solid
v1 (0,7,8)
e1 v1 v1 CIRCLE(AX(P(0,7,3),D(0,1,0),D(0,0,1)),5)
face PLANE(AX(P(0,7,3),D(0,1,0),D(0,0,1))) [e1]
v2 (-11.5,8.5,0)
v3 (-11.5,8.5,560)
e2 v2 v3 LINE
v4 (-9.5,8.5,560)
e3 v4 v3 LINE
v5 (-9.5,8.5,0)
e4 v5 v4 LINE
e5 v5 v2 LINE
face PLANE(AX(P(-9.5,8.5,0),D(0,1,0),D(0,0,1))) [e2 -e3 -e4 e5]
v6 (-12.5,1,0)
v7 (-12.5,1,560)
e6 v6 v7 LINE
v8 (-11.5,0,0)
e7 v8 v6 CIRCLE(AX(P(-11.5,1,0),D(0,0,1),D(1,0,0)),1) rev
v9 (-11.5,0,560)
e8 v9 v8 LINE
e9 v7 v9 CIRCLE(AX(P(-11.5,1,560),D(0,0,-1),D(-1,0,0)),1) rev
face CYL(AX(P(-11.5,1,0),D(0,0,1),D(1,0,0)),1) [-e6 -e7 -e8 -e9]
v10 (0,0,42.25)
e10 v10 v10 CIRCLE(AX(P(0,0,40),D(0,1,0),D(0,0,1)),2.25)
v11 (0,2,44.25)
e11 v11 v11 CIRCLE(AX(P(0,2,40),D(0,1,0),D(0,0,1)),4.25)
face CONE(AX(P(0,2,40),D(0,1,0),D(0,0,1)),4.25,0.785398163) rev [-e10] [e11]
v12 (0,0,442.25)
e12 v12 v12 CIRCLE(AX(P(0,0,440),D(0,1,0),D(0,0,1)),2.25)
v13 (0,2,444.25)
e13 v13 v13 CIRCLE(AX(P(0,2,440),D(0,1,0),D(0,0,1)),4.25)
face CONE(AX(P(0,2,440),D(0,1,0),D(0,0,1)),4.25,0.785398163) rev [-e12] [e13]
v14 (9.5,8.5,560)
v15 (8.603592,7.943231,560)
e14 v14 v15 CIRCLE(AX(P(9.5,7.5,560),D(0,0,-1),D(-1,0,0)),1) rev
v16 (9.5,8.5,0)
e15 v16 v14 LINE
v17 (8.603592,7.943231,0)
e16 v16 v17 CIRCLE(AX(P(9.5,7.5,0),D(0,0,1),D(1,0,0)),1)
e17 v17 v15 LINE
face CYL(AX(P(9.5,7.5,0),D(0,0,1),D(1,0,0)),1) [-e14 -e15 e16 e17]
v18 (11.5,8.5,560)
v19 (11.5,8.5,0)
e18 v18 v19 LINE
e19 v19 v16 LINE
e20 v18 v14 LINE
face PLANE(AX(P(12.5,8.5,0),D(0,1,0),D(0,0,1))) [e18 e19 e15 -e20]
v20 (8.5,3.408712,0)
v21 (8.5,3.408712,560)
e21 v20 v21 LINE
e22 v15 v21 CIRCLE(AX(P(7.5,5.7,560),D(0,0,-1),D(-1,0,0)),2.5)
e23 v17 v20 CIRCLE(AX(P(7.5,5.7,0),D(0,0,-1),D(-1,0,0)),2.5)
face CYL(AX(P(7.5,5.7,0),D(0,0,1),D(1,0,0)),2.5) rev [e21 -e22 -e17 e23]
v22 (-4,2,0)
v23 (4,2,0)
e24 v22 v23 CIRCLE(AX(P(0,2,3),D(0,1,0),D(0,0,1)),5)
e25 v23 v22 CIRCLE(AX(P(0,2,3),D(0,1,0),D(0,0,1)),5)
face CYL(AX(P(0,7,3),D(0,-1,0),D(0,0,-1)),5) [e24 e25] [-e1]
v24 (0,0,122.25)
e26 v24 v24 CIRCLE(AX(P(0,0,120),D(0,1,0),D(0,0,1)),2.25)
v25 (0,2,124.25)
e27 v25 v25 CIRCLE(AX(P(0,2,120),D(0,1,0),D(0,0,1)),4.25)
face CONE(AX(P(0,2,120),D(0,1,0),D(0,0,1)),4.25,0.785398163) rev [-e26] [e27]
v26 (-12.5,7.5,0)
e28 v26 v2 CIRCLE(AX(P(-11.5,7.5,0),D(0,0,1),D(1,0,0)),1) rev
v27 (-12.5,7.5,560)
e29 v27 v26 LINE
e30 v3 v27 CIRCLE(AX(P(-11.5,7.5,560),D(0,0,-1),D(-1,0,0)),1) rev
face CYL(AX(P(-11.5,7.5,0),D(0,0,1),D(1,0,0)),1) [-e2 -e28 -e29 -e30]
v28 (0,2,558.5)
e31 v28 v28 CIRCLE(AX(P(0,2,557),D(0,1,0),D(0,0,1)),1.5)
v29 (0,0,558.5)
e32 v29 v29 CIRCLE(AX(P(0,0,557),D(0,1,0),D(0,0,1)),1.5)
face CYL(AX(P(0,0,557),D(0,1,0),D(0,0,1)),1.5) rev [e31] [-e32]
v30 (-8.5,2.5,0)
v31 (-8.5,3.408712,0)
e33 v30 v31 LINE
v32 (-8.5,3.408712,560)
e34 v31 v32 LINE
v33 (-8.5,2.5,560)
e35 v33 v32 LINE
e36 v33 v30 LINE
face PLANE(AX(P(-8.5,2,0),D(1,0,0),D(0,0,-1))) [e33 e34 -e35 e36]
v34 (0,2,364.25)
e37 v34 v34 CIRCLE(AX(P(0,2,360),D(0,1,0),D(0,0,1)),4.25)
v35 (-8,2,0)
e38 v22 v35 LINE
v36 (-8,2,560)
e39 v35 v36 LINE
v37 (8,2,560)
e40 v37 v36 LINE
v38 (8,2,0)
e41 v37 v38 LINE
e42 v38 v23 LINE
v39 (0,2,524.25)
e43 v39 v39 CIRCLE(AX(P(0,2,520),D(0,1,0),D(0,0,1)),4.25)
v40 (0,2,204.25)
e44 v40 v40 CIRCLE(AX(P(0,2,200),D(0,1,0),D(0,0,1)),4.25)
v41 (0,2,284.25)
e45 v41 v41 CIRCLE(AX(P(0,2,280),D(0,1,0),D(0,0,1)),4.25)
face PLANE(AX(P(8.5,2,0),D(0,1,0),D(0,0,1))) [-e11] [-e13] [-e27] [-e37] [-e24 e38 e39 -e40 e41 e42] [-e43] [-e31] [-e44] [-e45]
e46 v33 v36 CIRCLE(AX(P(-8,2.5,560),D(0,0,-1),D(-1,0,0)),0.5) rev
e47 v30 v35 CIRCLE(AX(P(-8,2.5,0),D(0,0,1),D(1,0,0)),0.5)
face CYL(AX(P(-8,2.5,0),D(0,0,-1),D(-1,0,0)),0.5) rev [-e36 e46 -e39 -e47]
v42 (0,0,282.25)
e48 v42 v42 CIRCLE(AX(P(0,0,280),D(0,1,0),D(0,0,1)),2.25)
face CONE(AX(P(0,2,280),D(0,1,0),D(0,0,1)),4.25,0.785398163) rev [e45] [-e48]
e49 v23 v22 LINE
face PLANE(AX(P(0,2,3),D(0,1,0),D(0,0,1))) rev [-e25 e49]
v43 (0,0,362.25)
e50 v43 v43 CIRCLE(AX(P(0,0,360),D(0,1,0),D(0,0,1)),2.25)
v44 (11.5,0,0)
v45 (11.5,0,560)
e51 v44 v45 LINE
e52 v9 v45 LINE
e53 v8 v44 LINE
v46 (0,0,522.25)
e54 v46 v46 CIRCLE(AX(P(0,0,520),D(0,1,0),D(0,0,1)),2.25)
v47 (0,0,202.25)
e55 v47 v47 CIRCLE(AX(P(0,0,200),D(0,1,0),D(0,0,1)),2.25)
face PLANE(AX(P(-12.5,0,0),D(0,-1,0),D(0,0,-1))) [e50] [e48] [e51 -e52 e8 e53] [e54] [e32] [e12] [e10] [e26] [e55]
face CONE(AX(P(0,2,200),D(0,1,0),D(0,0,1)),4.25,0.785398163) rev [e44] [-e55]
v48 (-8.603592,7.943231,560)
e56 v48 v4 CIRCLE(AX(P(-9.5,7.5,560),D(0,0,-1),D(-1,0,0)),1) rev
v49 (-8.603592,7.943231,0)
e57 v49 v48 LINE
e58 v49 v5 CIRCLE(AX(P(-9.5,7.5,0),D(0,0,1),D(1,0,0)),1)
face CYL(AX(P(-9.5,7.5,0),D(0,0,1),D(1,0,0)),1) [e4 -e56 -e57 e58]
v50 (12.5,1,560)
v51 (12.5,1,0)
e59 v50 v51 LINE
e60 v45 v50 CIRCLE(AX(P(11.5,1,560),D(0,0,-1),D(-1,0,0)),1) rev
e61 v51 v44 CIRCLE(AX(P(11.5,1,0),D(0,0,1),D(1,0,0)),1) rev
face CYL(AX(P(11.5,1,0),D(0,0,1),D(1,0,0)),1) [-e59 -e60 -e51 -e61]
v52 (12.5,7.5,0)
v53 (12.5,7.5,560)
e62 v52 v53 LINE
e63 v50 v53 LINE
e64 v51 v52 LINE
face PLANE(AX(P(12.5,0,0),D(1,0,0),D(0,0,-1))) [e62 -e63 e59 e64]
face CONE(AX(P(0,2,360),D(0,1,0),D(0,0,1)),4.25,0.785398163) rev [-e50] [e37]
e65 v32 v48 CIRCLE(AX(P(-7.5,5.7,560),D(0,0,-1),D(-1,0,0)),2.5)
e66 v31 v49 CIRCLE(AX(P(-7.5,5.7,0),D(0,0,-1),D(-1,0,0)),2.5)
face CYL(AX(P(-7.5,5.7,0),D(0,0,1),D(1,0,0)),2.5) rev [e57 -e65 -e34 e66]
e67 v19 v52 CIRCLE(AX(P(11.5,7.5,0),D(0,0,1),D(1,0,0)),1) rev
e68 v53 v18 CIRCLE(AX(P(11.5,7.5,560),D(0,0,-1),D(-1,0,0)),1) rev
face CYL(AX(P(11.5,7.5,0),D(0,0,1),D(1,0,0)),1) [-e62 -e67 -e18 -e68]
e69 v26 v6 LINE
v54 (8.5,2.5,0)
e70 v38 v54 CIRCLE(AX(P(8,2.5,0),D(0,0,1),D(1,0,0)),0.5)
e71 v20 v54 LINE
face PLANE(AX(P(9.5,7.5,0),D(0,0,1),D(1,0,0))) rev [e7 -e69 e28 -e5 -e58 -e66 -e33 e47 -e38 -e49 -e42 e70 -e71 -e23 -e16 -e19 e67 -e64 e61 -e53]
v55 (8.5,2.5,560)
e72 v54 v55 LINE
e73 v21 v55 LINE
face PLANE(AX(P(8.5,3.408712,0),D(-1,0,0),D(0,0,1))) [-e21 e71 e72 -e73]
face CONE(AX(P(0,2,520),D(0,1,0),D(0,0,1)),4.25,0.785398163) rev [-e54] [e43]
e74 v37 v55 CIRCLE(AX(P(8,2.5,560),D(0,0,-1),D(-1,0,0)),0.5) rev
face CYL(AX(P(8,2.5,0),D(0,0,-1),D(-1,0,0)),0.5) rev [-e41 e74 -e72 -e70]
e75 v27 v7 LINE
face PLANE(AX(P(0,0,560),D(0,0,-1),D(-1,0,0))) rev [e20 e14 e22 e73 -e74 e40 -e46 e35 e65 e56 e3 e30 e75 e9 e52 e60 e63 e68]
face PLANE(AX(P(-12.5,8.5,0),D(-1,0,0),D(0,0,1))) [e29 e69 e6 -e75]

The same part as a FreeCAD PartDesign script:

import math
import FreeCAD as App
import Part
import Sketcher
Q = App.Units.Quantity


def edges_at(feature, points):
    """Names of the edges that pass closest to the given points."""
    edges = feature.Shape.Edges
    near = lambda p: min(range(len(edges)), key=lambda i: edges[i].distToShape(Part.Vertex(*p))[0])
    return sorted({f"Edge{near(p) + 1}" for p in points})

doc = App.newDocument("Part")
body = doc.addObject("PartDesign::Body", "Body")

# Sketch on XY plane
sketch1 = body.newObject("Sketcher::SketchObject", "Sketch")
sketch1.AttachmentSupport = (doc.getObject("XY_Plane"), [""])
sketch1.MapMode = "FlatFace"
sketch1.AttachmentOffset = App.Placement(App.Vector(0, 0, 720), App.Rotation())
sketch1.addGeometry([
    Part.LineSegment(App.Vector(8.5, 3.4, 0), App.Vector(8.5, 2, 0)),  # 0
    Part.LineSegment(App.Vector(8.5, 2, 0), App.Vector(-8.5, 2, 0)),  # 1
    Part.LineSegment(App.Vector(-8.5, 2, 0), App.Vector(-8.5, 3.4, 0)),  # 2
    Part.ArcOfCircle(Part.Circle(App.Vector(-7.5, 5.7, 0), App.Vector(0, 0, 1), 2.5), math.radians(116), math.radians(246)),  # 3
    Part.ArcOfCircle(Part.Circle(App.Vector(-9.5, 7.5, 0), App.Vector(0, 0, 1), 1), math.radians(26), math.radians(90)),  # 4
    Part.LineSegment(App.Vector(-9.5, 8.5, 0), App.Vector(-12.5, 8.5, 0)),  # 5
    Part.LineSegment(App.Vector(-12.5, 8.5, 0), App.Vector(-12.5, 0, 0)),  # 6
    Part.LineSegment(App.Vector(-12.5, 0, 0), App.Vector(12.5, 0, 0)),  # 7
    Part.LineSegment(App.Vector(12.5, 0, 0), App.Vector(12.5, 8.5, 0)),  # 8
    Part.LineSegment(App.Vector(12.5, 8.5, 0), App.Vector(9.5, 8.5, 0)),  # 9
    Part.ArcOfCircle(Part.Circle(App.Vector(9.5, 7.5, 0), App.Vector(0, 0, 1), 1), math.radians(90), math.radians(154)),  # 10
    Part.ArcOfCircle(Part.Circle(App.Vector(7.5, 5.7, 0), App.Vector(0, 0, 1), 2.5), math.radians(-66), math.radians(64)),  # 11
], False)
sketch1.addConstraint([
    Sketcher.Constraint("Coincident", 0, 2, 1, 1),
    Sketcher.Constraint("Coincident", 1, 2, 2, 1),
    Sketcher.Constraint("Coincident", 2, 2, 3, 2),
    Sketcher.Constraint("Coincident", 3, 1, 4, 1),
    Sketcher.Constraint("Tangent", 4, 2, 5, 1),
    Sketcher.Constraint("Coincident", 5, 2, 6, 1),
    Sketcher.Constraint("Coincident", 6, 2, 7, 1),
    Sketcher.Constraint("Coincident", 7, 2, 8, 1),
    Sketcher.Constraint("Coincident", 8, 2, 9, 1),
    Sketcher.Constraint("Tangent", 9, 2, 10, 1),
    Sketcher.Constraint("Coincident", 10, 2, 11, 2),
    Sketcher.Constraint("Coincident", 11, 1, 0, 1),
    Sketcher.Constraint("Vertical", 0),
    Sketcher.Constraint("Horizontal", 1),
    Sketcher.Constraint("Vertical", 2),
    Sketcher.Constraint("Horizontal", 5),
    Sketcher.Constraint("Vertical", 6),
    Sketcher.Constraint("Horizontal", 7),
    Sketcher.Constraint("Vertical", 8),
    Sketcher.Constraint("Horizontal", 9),
    Sketcher.Constraint("Equal", 4, 10),
    Sketcher.Constraint("Equal", 3, 11),
    Sketcher.Constraint("Symmetric", 6, 2, 7, 2, -1, 1),
    Sketcher.Constraint("Symmetric", 4, 3, 10, 3, -2),
    Sketcher.Constraint("Symmetric", 3, 3, 11, 3, -2),
    Sketcher.Constraint("Horizontal", 2, 2, 11, 1),
    Sketcher.Constraint("Radius", 4, Q("1 mm")),
    Sketcher.Constraint("Radius", 3, Q("2.5 mm")),
    Sketcher.Constraint("DistanceX", 1, 2, 1, 1, Q("17 mm")),
    Sketcher.Constraint("DistanceX", 5, 2, 5, 1, Q("3 mm")),
    Sketcher.Constraint("DistanceX", 7, 1, 7, 2, Q("25 mm")),
    Sketcher.Constraint("DistanceY", 6, 2, 6, 1, Q("8.5 mm")),
    Sketcher.Constraint("DistanceY", -1, 1, 0, 2, Q("2 mm")),
    Sketcher.Constraint("DistanceX", 4, 3, 3, 3, Q("2 mm")),
    Sketcher.Constraint("DistanceY", -1, 1, 3, 3, Q("5.7 mm")),
])
pad1 = body.newObject("PartDesign::Pad", "Pad")
pad1.Profile = sketch1
pad1.Length = 720
pad1.Reversed = True

# Sketch on XZ plane
sketch2 = body.newObject("Sketcher::SketchObject", "Sketch001")
sketch2.AttachmentSupport = (doc.getObject("XZ_Plane"), [""])
sketch2.MapMode = "FlatFace"
sketch2.AttachmentOffset = App.Placement(App.Vector(0, 0, -2), App.Rotation())
sketch2.addGeometry(Part.Circle(App.Vector(0, 3, 0), App.Vector(0, 0, 1), 5), False)
sketch2.addConstraint([
    Sketcher.Constraint("PointOnObject", 0, 3, -2),
    Sketcher.Constraint("Diameter", 0, Q("10 mm")),
    Sketcher.Constraint("DistanceY", -1, 1, 0, 3, Q("3 mm")),
])
pad2 = body.newObject("PartDesign::Pad", "Pad001")
pad2.Profile = sketch2
pad2.Length = 5
pad2.Reversed = True

# Sketch on YZ plane
sketch3 = body.newObject("Sketcher::SketchObject", "Sketch002")
sketch3.AttachmentSupport = (doc.getObject("YZ_Plane"), [""])
sketch3.MapMode = "FlatFace"
sketch3.addGeometry([
    Part.LineSegment(App.Vector(0, 40, 0), App.Vector(2, 40, 0)),
    Part.LineSegment(App.Vector(2, 40, 0), App.Vector(2, 44.2, 0)),
    Part.LineSegment(App.Vector(2, 44.2, 0), App.Vector(0, 42.2, 0)),
    Part.LineSegment(App.Vector(0, 42.2, 0), App.Vector(0, 40, 0)),
], False)
sketch3.addGeometry(Part.LineSegment(App.Vector(0, 40, 0), App.Vector(2, 40, 0)), True)  # axis
sketch3.addConstraint([
    Sketcher.Constraint("Coincident", 0, 2, 1, 1),
    Sketcher.Constraint("Coincident", 1, 2, 2, 1),
    Sketcher.Constraint("Coincident", 2, 2, 3, 1),
    Sketcher.Constraint("Coincident", 3, 2, 0, 1),
    Sketcher.Constraint("Horizontal", 0),
    Sketcher.Constraint("Vertical", 1),
    Sketcher.Constraint("Vertical", 3),
    Sketcher.Constraint("Horizontal", 4),
    Sketcher.Constraint("Coincident", 4, 1, 3, 2),
    Sketcher.Constraint("PointOnObject", 2, 2, -2),
    Sketcher.Constraint("Vertical", 1, 2, 4, 2),
    Sketcher.Constraint("DistanceX", 0, 1, 0, 2, Q("2 mm")),
    Sketcher.Constraint("Angle", 2, Q("-135 deg")),
    Sketcher.Constraint("DistanceY", -1, 1, 0, 2, Q("40 mm")),
    Sketcher.Constraint("DistanceY", 1, 1, 1, 2, Q("4.25 mm")),
])
groove = body.newObject("PartDesign::Groove", "Groove")
groove.Profile = sketch3
groove.ReferenceAxis = (sketch3, ["Axis0"])
groove.Angle = 360
doc.recompute()

linearpattern = body.newObject("PartDesign::LinearPattern", "LinearPattern")
linearpattern.Originals = [groove]
linearpattern.Direction = (doc.getObject("Z_Axis"), [""])
linearpattern.Mode = "offset"
linearpattern.Offset = 640
linearpattern.Occurrences = 2
body.Tip = linearpattern
doc.recompute()

linearpattern2 = body.newObject("PartDesign::LinearPattern", "LinearPattern001")
linearpattern2.Originals = [groove]
linearpattern2.Direction = (doc.getObject("Z_Axis"), [""])
linearpattern2.Mode = "offset"
linearpattern2.Offset = 560
linearpattern2.Occurrences = 2
body.Tip = linearpattern2
doc.recompute()

linearpattern3 = body.newObject("PartDesign::LinearPattern", "LinearPattern002")
linearpattern3.Originals = [groove]
linearpattern3.Direction = (doc.getObject("Z_Axis"), [""])
linearpattern3.Mode = "offset"
linearpattern3.Offset = 480
linearpattern3.Occurrences = 2
body.Tip = linearpattern3
doc.recompute()

linearpattern4 = body.newObject("PartDesign::LinearPattern", "LinearPattern003")
linearpattern4.Originals = [groove]
linearpattern4.Direction = (doc.getObject("Z_Axis"), [""])
linearpattern4.Mode = "offset"
linearpattern4.Offset = 400
linearpattern4.Occurrences = 2
body.Tip = linearpattern4
doc.recompute()

linearpattern5 = body.newObject("PartDesign::LinearPattern", "LinearPattern004")
linearpattern5.Originals = [groove]
linearpattern5.Direction = (doc.getObject("Z_Axis"), [""])
linearpattern5.Mode = "offset"
linearpattern5.Offset = 320
linearpattern5.Occurrences = 2
body.Tip = linearpattern5
doc.recompute()

linearpattern6 = body.newObject("PartDesign::LinearPattern", "LinearPattern005")
linearpattern6.Originals = [groove]
linearpattern6.Direction = (doc.getObject("Z_Axis"), [""])
linearpattern6.Mode = "offset"
linearpattern6.Offset = 240
linearpattern6.Occurrences = 2
body.Tip = linearpattern6
doc.recompute()

linearpattern7 = body.newObject("PartDesign::LinearPattern", "LinearPattern006")
linearpattern7.Originals = [groove]
linearpattern7.Direction = (doc.getObject("Z_Axis"), [""])
linearpattern7.Mode = "offset"
linearpattern7.Offset = 160
linearpattern7.Occurrences = 2
body.Tip = linearpattern7
doc.recompute()

linearpattern8 = body.newObject("PartDesign::LinearPattern", "LinearPattern007")
linearpattern8.Originals = [groove]
linearpattern8.Direction = (doc.getObject("Z_Axis"), [""])
linearpattern8.Mode = "offset"
linearpattern8.Offset = 80
linearpattern8.Occurrences = 2
body.Tip = linearpattern8
doc.recompute()

fillet = body.newObject("PartDesign::Fillet", "Fillet")
fillet.Base = (linearpattern8, edges_at(linearpattern8, [(-8.5, 2, 360), (8.5, 2, 360)]))
fillet.Radius = 0.5
doc.recompute()

fillet2 = body.newObject("PartDesign::Fillet", "Fillet001")
fillet2.Base = (fillet, edges_at(fillet, [
    (12.5, 8.5, 360),
    (12.5, 0, 360),
    (-12.5, 0, 360),
    (-12.5, 8.5, 360),
]))
fillet2.Radius = 1

# Sketch on XY plane
sketch4 = body.newObject("Sketcher::SketchObject", "Sketch003")
sketch4.AttachmentSupport = (doc.getObject("XY_Plane"), [""])
sketch4.MapMode = "FlatFace"
sketch4.AttachmentOffset = App.Placement(App.Vector(0, 0, 720), App.Rotation())
sketch4.addGeometry([
    Part.LineSegment(App.Vector(-14, 8, 0), App.Vector(-14, 0, 0)),
    Part.LineSegment(App.Vector(-14, 0, 0), App.Vector(14, 0, 0)),
    Part.LineSegment(App.Vector(14, 0, 0), App.Vector(14, 8, 0)),
    Part.LineSegment(App.Vector(14, 8, 0), App.Vector(-14, 8, 0)),
], False)
sketch4.addConstraint([
    Sketcher.Constraint("Coincident", 0, 2, 1, 1),
    Sketcher.Constraint("Coincident", 1, 2, 2, 1),
    Sketcher.Constraint("Coincident", 2, 2, 3, 1),
    Sketcher.Constraint("Coincident", 3, 2, 0, 1),
    Sketcher.Constraint("Vertical", 0),
    Sketcher.Constraint("Horizontal", 1),
    Sketcher.Constraint("Vertical", 2),
    Sketcher.Constraint("Horizontal", 3),
    Sketcher.Constraint("PointOnObject", 0, 2, -1),
    Sketcher.Constraint("DistanceY", 0, 2, 0, 1, Q("8.5 mm")),
    Sketcher.Constraint("DistanceX", 0, 2, -1, 1, Q("14.285299 mm")),
    Sketcher.Constraint("DistanceX", 1, 1, 1, 2, Q("28.389485 mm")),
])
pocket1 = body.newObject("PartDesign::Pocket", "Pocket")
pocket1.Profile = sketch4
pocket1.Length = 160

# Sketch on XZ plane
sketch5 = body.newObject("Sketcher::SketchObject", "Sketch004")
sketch5.AttachmentSupport = (doc.getObject("XZ_Plane"), [""])
sketch5.MapMode = "FlatFace"
sketch5.AttachmentOffset = App.Placement(App.Vector(0, 0, -2), App.Rotation())
sketch5.addGeometry(Part.Circle(App.Vector(0, 557, 0), App.Vector(0, 0, 1), 1.5), False)
sketch5.addConstraint([
    Sketcher.Constraint("PointOnObject", 0, 3, -2),
    Sketcher.Constraint("Diameter", 0, Q("3 mm")),
    Sketcher.Constraint("DistanceY", -1, 1, 0, 3, Q("557 mm")),
])
pocket2 = body.newObject("PartDesign::Pocket", "Pocket001")
pocket2.Profile = sketch5
pocket2.Type = "ThroughAll"
pocket2.Reversed = True

doc.recompute()
